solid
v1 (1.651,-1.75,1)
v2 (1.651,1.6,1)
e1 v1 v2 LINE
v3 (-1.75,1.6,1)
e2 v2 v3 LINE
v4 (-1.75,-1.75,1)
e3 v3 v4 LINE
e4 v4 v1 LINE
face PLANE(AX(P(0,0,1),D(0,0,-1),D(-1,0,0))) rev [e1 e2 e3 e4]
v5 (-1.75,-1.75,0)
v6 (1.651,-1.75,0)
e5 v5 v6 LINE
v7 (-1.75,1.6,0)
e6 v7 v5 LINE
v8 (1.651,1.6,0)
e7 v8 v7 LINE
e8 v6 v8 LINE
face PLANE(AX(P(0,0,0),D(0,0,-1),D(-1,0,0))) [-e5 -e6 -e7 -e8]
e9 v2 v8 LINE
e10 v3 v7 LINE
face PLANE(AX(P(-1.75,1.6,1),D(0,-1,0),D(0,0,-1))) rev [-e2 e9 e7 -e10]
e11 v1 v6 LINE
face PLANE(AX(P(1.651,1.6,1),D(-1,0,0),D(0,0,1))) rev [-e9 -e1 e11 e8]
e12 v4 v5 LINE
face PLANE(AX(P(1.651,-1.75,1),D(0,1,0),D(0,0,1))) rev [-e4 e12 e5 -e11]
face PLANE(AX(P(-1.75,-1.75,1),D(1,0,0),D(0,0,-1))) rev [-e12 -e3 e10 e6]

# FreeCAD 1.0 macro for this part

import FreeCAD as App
import Part
import Sketcher
Q = App.Units.Quantity

doc = App.newDocument("Part")
params = doc.addObject("Spreadsheet::Sheet", "Params")
for row, (alias, value) in enumerate([
    ("sketch1_height", "3.35 mm"),
    ("pad1_length", "1 mm"),
], start=1):
    params.set(f"A{row}", alias)
    params.set(f"B{row}", "=" + value)
    params.setAlias(f"B{row}", alias)

body = doc.addObject("PartDesign::Body", "Body")

sketch1 = doc.addObject("Sketcher::SketchObject", "Sketch")
body.addObject(sketch1)
sketch1.AttachmentSupport = (doc.XY_Plane, [""])
sketch1.MapMode = "FlatFace"
sketch1.addGeometry(Part.LineSegment(App.Vector(-1.8, 1.6, 0), App.Vector(-1.8, -1.8, 0)), False)
sketch1.addGeometry(Part.LineSegment(App.Vector(-1.8, -1.8, 0), App.Vector(1.7, -1.8, 0)), False)
sketch1.addGeometry(Part.LineSegment(App.Vector(1.7, -1.8, 0), App.Vector(1.7, 1.6, 0)), False)
sketch1.addGeometry(Part.LineSegment(App.Vector(1.7, 1.6, 0), App.Vector(-1.8, 1.6, 0)), False)
sketch1.addConstraint(Sketcher.Constraint("Coincident", 0, 2, 1, 1))
sketch1.addConstraint(Sketcher.Constraint("Coincident", 1, 2, 2, 1))
sketch1.addConstraint(Sketcher.Constraint("Coincident", 2, 2, 3, 1))
sketch1.addConstraint(Sketcher.Constraint("Coincident", 3, 2, 0, 1))
sketch1.addConstraint(Sketcher.Constraint("Vertical", 0))
sketch1.addConstraint(Sketcher.Constraint("Horizontal", 1))
sketch1.addConstraint(Sketcher.Constraint("Vertical", 2))
sketch1.addConstraint(Sketcher.Constraint("Horizontal", 3))
sketch1.addConstraint(Sketcher.Constraint("DistanceY", 0, 2, 0, 1, Q("3.35 mm")))
sketch1.addConstraint(Sketcher.Constraint("DistanceY", -1, 1, 2, 2, Q("1.6 mm")))
sketch1.addConstraint(Sketcher.Constraint("DistanceX", 1, 1, 1, 2, Q("3.401 mm")))
sketch1.addConstraint(Sketcher.Constraint("DistanceX", 0, 2, -1, 1, Q("1.75 mm")))
sketch1.setExpression("Constraints[8]", "Params.sketch1_height")
pad1 = doc.addObject("PartDesign::Pad", "Pad")
body.addObject(pad1)
pad1.Profile = sketch1
pad1.setExpression("Length", "Params.pad1_length")

doc.recompute()
